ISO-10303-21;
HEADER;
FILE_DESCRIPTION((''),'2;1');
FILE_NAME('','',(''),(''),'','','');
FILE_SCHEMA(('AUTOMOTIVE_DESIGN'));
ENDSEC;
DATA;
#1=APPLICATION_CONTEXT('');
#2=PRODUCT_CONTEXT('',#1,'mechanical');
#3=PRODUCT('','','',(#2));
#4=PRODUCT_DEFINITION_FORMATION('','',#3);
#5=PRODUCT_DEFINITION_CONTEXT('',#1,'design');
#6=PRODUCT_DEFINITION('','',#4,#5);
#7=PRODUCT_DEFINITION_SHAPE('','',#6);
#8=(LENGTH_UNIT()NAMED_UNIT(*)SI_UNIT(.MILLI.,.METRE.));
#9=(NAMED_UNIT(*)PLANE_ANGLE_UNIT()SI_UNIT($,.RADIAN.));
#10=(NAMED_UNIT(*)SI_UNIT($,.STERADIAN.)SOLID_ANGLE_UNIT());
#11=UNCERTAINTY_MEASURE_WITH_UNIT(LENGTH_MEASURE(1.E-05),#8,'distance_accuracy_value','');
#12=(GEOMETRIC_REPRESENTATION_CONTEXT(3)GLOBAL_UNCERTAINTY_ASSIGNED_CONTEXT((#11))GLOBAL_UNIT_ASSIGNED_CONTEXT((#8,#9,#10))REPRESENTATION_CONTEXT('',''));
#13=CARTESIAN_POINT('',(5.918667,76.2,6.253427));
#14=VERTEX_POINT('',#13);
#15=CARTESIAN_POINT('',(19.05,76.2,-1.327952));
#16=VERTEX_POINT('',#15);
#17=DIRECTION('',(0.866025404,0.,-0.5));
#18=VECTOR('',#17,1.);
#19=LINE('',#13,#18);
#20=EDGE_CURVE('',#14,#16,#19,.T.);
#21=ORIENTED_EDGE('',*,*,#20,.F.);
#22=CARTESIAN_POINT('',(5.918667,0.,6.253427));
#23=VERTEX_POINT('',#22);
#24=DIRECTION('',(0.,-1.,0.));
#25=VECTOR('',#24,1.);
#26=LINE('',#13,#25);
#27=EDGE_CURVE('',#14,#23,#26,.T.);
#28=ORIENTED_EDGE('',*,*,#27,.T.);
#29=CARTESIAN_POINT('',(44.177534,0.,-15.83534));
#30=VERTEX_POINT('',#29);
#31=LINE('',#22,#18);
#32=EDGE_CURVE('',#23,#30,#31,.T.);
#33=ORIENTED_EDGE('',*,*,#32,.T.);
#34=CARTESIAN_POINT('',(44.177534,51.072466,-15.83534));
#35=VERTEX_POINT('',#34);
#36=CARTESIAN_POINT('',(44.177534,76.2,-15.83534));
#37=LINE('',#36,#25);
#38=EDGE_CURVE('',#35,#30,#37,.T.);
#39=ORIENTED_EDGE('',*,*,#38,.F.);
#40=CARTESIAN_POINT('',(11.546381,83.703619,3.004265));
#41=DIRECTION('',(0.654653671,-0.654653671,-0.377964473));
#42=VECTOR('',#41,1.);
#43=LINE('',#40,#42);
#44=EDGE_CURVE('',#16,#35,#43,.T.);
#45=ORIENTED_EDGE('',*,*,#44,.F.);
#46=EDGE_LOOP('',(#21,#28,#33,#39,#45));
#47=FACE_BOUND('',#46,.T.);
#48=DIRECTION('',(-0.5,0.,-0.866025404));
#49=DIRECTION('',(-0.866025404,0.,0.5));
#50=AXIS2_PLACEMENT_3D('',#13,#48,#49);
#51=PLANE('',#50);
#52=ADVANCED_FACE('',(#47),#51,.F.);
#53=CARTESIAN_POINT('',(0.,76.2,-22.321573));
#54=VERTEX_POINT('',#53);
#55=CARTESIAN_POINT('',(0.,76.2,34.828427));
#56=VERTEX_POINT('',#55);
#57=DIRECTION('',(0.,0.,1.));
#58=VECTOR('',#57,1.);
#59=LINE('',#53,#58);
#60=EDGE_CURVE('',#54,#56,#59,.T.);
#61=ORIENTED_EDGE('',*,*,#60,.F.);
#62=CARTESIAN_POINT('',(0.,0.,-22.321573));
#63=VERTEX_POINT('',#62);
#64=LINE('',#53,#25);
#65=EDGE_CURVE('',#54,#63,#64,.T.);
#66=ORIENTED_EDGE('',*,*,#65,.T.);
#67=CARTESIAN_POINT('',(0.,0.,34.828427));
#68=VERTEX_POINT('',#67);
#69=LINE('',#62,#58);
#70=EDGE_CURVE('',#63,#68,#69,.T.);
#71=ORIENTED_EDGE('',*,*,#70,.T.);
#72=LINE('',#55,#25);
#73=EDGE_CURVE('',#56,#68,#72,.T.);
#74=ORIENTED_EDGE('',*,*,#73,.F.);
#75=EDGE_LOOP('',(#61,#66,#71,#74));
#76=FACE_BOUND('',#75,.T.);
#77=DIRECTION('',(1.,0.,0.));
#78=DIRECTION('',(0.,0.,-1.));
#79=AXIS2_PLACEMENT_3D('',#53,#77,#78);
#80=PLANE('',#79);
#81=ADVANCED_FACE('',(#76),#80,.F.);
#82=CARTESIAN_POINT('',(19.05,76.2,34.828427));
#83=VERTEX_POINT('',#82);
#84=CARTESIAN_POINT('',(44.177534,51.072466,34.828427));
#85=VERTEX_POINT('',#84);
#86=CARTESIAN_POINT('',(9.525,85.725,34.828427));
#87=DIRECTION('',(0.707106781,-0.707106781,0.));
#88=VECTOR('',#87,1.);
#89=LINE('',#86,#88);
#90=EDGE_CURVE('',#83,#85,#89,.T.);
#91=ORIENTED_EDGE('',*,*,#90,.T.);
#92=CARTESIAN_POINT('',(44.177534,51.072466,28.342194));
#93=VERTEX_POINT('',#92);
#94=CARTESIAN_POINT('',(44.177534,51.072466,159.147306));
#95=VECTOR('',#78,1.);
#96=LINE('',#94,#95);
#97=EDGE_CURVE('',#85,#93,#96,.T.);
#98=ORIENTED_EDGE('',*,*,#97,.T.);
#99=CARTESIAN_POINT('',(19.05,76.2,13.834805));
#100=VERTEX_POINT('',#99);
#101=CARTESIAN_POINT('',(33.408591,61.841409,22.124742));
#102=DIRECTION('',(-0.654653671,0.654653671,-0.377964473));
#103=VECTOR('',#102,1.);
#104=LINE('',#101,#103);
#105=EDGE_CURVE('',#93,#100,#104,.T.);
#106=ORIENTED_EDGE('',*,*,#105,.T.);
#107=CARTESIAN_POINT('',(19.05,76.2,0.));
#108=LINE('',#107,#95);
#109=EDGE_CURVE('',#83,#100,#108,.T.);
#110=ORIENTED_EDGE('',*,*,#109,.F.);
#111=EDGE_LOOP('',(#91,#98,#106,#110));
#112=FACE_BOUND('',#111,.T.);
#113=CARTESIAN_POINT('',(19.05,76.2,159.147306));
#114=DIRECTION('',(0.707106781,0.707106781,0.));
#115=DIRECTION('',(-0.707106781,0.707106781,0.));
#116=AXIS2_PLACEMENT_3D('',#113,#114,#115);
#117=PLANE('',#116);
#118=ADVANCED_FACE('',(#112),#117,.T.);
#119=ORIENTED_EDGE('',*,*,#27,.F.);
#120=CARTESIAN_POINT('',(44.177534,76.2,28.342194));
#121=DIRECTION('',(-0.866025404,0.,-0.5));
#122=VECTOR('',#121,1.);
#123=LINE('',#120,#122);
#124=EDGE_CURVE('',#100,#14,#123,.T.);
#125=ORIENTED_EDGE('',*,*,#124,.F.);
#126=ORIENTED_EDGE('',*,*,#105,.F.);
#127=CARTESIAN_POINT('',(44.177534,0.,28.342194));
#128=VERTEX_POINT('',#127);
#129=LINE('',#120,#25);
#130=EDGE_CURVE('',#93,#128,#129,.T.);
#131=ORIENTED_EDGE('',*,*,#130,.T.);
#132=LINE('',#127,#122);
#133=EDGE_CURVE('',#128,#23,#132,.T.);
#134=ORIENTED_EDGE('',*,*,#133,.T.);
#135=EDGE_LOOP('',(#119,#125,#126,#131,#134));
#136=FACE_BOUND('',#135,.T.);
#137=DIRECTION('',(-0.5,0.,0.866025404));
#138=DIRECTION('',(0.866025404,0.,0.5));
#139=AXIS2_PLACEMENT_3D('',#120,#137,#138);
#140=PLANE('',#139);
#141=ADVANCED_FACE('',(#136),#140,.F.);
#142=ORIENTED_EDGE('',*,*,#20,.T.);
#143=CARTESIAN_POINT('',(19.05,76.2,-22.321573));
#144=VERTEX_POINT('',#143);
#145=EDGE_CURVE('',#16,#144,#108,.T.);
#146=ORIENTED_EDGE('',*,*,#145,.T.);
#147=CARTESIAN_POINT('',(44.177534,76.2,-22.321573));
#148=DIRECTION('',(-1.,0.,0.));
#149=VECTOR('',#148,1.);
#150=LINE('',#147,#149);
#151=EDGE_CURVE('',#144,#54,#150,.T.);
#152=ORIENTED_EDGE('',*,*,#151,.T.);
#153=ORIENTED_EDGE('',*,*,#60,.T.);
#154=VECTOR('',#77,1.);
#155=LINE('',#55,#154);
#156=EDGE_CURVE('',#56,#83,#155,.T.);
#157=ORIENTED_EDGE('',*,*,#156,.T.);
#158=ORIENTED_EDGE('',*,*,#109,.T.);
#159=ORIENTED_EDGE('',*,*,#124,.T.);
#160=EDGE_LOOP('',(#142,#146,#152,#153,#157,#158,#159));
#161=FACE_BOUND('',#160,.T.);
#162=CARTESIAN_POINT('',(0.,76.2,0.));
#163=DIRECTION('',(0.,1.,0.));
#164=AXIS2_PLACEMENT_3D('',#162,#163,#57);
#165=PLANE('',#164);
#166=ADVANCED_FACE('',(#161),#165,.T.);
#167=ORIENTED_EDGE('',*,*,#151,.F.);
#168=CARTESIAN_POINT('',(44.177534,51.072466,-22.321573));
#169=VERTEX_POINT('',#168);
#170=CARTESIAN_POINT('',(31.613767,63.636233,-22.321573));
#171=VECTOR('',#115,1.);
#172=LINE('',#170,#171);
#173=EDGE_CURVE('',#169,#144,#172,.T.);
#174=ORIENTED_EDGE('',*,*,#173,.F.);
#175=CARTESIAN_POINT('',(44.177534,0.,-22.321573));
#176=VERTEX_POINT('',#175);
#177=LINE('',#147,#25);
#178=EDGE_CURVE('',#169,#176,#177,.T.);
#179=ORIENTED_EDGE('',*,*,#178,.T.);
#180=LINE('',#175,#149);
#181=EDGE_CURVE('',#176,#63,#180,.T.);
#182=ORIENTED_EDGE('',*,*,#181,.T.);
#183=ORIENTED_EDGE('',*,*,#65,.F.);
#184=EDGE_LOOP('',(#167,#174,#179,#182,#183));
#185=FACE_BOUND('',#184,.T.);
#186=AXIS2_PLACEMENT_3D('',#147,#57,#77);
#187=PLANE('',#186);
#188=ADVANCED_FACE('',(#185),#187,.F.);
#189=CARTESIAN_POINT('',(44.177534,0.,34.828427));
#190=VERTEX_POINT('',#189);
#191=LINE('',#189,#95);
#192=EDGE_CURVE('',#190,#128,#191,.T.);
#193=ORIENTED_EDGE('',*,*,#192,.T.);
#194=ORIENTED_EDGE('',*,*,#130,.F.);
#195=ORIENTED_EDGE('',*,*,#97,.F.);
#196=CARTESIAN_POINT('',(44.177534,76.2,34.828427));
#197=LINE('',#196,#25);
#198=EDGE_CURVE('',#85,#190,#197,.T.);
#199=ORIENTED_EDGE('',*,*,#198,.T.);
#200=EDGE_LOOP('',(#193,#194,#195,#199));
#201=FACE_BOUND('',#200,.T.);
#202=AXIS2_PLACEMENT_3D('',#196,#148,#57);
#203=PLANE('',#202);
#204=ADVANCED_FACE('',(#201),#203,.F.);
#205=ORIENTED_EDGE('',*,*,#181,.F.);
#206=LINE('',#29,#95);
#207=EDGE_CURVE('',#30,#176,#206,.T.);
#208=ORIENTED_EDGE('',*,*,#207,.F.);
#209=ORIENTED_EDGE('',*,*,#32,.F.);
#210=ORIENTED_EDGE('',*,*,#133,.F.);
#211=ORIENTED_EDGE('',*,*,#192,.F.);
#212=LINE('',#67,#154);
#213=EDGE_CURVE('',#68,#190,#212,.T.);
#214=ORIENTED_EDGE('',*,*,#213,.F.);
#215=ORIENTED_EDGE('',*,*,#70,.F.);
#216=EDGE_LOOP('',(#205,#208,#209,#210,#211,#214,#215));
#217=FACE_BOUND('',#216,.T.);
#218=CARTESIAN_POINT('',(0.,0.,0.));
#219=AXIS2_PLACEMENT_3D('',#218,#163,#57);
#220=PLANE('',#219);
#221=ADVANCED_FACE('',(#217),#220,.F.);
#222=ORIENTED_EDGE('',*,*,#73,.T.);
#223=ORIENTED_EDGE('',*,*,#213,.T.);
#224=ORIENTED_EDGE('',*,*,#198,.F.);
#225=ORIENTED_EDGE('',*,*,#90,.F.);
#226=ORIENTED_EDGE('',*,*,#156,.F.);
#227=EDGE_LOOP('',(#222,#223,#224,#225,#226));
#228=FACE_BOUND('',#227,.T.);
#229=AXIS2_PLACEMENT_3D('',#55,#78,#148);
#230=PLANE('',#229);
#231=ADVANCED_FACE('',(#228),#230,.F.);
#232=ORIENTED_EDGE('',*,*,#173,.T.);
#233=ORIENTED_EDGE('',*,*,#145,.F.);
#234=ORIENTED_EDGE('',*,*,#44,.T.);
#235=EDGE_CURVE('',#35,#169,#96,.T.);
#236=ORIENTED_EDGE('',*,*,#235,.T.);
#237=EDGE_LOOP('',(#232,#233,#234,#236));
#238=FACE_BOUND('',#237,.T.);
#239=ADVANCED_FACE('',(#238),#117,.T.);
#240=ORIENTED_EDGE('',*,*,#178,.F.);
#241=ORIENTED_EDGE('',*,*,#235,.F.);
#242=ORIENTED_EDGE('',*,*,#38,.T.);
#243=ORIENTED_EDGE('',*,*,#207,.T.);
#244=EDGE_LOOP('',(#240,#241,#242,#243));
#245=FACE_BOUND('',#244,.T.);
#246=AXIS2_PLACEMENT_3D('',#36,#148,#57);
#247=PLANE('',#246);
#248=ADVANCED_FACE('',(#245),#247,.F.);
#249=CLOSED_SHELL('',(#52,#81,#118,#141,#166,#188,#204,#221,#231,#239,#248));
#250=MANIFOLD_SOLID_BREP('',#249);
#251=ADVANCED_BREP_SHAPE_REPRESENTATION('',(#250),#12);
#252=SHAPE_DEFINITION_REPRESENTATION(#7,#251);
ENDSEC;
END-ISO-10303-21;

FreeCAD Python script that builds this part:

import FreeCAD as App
import Part
import Sketcher
from FreeCAD import Vector
Q = App.Units.Quantity


def add_polygon(sketch, points):
    """Adds a closed chain of lines whose ends are joined by coincident constraints."""
    first, n = sketch.GeometryCount, len(points)
    for a, b in zip(points, points[1:] + points[:1]):
        sketch.addGeometry(Part.LineSegment(App.Vector(*a, 0), App.Vector(*b, 0)), False)
    for i in range(n):
        sketch.addConstraint(Sketcher.Constraint("Coincident", first + i, 2, first + (i + 1) % n, 1))

doc = App.newDocument("Part")
body = doc.addObject("PartDesign::Body", "Body")

# Sketch on XZ plane
sketch1 = body.newObject("Sketcher::SketchObject", "Sketch")
sketch1.AttachmentSupport = (doc.getObject("XZ_Plane"), [""])
sketch1.MapMode = "FlatFace"
add_polygon(sketch1, [(44, -22), (0, -22), (0, 35), (44, 35), (44, 28), (6, 6), (44, -16)])  # lines 0-6
sketch1.addConstraint([
    Sketcher.Constraint("Horizontal", 0),
    Sketcher.Constraint("Vertical", 1),
    Sketcher.Constraint("Horizontal", 2),
    Sketcher.Constraint("Vertical", 3),
    Sketcher.Constraint("Vertical", 6),
    Sketcher.Constraint("PointOnObject", 0, 2, -2),
    Sketcher.Constraint("Vertical", 3, 2, 5, 2),
    Sketcher.Constraint("Equal", 3, 6),
    Sketcher.Constraint("Equal", 4, 5),
    Sketcher.Constraint("Angle", 4, Q("-150 deg")),
    Sketcher.Constraint("DistanceY", 1, 1, 1, 2, Q("2.25 in")),
    Sketcher.Constraint("DistanceX", 0, 2, 0, 1, 44.177534),
    Sketcher.Constraint("DistanceY", 3, 2, 3, 1, 6.486233),
    Sketcher.Constraint("DistanceY", 5, 2, -1, 1, 15.83534),
])
pad1 = body.newObject("PartDesign::Pad", "Pad")
pad1.Profile = sketch1
pad1.Length = Q("3 in")
pad1.Reversed = True

# Sketch on XY plane
sketch2 = body.newObject("Sketcher::SketchObject", "Sketch001")
sketch2.AttachmentSupport = (doc.getObject("XY_Plane"), [""])
sketch2.MapMode = "FlatFace"
add_polygon(sketch2, [(-101, 197), (165, -69), (406, 172), (140, 438)])  # lines 0-3
sketch2.addConstraint([
    Sketcher.Constraint("Perpendicular", 0, 1),
    Sketcher.Constraint("Perpendicular", 1, 2),
    Sketcher.Constraint("Perpendicular", 2, 3),
    Sketcher.Constraint("Angle", 0, Q("-45 deg")),
    Sketcher.Constraint("Distance", 0, 376.480131),
    Sketcher.Constraint("Distance", 1, 340.944431),
    Sketcher.Constraint("DistanceX", -1, 1, 2, 2, 139.59206),
    Sketcher.Constraint("DistanceY", -1, 1, 2, 2, 437.826179),
])
pocket1 = body.newObject("PartDesign::Pocket", "Pocket")
pocket1.Profile = sketch2
pocket1.Type = "ThroughAll"
pocket1.Midplane = True

doc.recompute()
